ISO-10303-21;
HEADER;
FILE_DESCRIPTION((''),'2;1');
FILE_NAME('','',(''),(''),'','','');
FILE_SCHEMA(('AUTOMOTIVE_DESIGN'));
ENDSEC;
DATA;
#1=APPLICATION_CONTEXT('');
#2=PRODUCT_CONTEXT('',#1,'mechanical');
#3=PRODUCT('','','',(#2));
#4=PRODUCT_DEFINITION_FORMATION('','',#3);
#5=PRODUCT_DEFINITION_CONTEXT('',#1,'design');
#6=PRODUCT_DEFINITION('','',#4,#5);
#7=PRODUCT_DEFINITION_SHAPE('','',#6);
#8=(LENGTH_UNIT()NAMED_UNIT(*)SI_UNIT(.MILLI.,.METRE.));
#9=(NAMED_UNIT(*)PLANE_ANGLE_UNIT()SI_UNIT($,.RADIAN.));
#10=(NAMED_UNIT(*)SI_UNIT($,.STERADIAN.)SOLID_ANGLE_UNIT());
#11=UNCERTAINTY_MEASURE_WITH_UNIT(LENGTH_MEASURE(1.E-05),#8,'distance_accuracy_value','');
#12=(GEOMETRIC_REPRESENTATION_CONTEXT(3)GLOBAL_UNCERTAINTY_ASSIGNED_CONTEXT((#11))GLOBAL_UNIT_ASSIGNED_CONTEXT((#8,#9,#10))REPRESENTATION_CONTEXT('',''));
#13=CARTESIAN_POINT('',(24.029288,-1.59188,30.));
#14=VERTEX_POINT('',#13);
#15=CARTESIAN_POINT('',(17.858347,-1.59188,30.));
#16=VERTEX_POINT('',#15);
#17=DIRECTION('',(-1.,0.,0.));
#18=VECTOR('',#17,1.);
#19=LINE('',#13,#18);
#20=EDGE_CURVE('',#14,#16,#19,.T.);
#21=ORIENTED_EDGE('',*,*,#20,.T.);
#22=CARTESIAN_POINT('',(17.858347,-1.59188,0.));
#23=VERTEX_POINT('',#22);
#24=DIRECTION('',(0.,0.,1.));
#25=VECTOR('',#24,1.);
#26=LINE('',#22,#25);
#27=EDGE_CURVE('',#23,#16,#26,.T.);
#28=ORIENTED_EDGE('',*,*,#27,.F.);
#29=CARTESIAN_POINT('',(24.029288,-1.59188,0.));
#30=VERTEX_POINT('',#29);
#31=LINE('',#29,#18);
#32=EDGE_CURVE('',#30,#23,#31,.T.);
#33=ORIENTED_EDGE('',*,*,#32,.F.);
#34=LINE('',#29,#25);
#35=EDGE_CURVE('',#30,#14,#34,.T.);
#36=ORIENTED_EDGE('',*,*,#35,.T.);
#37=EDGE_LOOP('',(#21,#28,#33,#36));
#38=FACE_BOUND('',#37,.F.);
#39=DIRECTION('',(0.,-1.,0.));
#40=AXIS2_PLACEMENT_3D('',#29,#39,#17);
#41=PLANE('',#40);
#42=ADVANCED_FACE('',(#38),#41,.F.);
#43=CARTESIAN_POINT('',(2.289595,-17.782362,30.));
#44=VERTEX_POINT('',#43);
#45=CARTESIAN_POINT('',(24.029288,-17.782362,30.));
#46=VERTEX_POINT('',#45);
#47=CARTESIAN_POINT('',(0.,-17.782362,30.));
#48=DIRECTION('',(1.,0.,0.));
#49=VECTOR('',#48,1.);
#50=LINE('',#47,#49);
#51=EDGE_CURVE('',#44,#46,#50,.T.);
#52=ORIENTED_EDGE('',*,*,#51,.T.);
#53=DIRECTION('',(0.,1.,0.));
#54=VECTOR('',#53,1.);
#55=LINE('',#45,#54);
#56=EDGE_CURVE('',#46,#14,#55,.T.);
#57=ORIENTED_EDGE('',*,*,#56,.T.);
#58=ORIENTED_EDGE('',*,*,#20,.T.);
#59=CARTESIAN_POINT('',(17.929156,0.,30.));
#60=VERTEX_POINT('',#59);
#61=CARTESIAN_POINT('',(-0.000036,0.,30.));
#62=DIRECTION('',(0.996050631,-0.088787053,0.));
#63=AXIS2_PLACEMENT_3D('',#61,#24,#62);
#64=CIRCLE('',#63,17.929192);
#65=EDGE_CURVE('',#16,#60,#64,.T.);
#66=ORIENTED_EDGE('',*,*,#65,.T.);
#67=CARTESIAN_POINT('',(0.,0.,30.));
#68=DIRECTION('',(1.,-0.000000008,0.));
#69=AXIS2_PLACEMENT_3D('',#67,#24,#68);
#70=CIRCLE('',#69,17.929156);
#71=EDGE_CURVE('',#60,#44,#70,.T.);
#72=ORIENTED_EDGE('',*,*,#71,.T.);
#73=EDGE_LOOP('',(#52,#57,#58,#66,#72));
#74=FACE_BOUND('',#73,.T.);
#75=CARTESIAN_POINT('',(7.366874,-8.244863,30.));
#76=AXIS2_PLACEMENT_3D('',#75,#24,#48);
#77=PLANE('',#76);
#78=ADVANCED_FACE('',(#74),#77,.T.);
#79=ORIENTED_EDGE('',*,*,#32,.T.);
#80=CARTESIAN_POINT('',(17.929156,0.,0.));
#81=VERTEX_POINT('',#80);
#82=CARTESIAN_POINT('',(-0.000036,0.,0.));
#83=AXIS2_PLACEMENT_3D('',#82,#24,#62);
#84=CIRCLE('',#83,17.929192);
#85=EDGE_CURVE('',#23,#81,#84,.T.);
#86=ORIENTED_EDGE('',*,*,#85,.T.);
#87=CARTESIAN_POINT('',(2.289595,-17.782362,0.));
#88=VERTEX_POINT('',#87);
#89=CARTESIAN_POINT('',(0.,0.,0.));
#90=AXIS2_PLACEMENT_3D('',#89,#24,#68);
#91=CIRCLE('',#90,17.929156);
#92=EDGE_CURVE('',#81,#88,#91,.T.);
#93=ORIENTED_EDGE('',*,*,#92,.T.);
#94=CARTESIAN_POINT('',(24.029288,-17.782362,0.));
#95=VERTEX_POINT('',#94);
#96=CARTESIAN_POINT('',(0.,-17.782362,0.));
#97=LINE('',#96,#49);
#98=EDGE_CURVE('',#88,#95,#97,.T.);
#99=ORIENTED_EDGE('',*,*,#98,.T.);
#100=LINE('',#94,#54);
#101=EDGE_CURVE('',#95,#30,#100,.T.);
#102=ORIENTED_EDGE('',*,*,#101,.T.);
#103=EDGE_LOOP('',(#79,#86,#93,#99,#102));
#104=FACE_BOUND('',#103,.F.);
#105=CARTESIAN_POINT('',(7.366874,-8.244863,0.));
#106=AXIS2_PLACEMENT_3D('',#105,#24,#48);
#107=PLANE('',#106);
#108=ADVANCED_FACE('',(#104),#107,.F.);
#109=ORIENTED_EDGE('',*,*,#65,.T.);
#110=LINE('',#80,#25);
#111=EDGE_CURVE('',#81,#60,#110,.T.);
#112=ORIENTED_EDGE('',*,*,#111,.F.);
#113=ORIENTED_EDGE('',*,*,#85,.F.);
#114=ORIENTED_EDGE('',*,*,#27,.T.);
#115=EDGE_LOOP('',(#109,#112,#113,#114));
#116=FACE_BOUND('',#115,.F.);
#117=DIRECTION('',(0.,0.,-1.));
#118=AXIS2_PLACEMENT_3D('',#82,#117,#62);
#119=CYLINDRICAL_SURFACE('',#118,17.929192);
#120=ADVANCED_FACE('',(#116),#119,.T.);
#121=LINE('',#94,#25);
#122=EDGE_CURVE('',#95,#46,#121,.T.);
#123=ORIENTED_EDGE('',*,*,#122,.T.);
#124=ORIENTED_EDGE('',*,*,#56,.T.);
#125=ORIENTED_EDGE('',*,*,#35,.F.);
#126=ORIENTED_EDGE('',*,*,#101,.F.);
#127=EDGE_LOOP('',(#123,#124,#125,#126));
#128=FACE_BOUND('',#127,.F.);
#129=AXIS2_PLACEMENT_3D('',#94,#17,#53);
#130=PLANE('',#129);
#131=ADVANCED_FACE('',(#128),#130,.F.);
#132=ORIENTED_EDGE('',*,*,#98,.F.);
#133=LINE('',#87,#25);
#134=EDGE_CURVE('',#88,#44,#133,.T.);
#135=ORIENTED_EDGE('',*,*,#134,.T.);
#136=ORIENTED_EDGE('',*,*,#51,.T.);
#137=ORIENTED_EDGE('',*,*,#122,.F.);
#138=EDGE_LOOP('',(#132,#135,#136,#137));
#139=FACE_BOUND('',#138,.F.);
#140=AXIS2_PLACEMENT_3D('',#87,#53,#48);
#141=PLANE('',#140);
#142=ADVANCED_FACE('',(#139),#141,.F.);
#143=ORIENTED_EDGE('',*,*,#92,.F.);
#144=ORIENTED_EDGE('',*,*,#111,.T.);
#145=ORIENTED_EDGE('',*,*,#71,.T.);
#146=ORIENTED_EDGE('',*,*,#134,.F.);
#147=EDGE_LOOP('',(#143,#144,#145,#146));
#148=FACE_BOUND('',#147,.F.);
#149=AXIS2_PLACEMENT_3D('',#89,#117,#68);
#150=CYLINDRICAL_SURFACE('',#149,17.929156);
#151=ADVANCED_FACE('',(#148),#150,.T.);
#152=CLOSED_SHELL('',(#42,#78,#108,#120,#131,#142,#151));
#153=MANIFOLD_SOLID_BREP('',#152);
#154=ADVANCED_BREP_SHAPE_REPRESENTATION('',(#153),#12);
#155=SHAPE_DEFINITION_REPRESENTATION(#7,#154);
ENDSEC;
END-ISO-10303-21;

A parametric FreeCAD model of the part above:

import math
import FreeCAD as App
import Part
import Sketcher

V = App.Vector

doc = App.newDocument("Part")
params = doc.addObject("Spreadsheet::Sheet", "Params")
for row, (alias, value) in enumerate([
    ("pad1_length", "30 mm"),
], start=1):
    params.set(f"A{row}", alias)
    params.set(f"B{row}", "=" + value)
    params.setAlias(f"B{row}", alias)

body = doc.addObject("PartDesign::Body", "Body")

# Sketch on XY plane
sketch1 = body.newObject("Sketcher::SketchObject", "Sketch")
sketch1.AttachmentSupport = (doc.getObject("XY_Plane"), [""])
sketch1.MapMode = "FlatFace"
sketch1.addGeometry([
    Part.LineSegment(V(2.3, -17.8, 0), V(24, -17.8, 0)),  # 0
    Part.LineSegment(V(24, -17.8, 0), V(24, -1.6, 0)),  # 1
    Part.LineSegment(V(24, -1.6, 0), V(17.9, -1.6, 0)),  # 2
    Part.ArcOfCircle(Part.Circle(V(0, 0, 0), V(0, 0, 1), 17.9), math.radians(-5.09), math.radians(0)),  # 3
    Part.ArcOfCircle(Part.Circle(V(0, 0, 0), V(0, 0, 1), 17.9), math.radians(0), math.radians(277)),  # 4
], False)
sketch1.addConstraint([
    Sketcher.Constraint("Coincident", 0, 2, 1, 1),
    Sketcher.Constraint("Coincident", 1, 2, 2, 1),
    Sketcher.Constraint("Coincident", 2, 2, 3, 1),
    Sketcher.Constraint("Tangent", 3, 2, 4, 1),
    Sketcher.Constraint("Coincident", 4, 2, 0, 1),
    Sketcher.Constraint("Horizontal", 0),
    Sketcher.Constraint("Vertical", 1),
    Sketcher.Constraint("Horizontal", 2),
    Sketcher.Constraint("Coincident", 4, 3, -1, 1),
    Sketcher.Constraint("PointOnObject", 3, 2, -1),
    Sketcher.Constraint("Radius", 3, 17.929192),
    Sketcher.Constraint("Radius", 4, 17.929156),
    Sketcher.Constraint("DistanceX", 2, 2, 2, 1, 6.170941),
    Sketcher.Constraint("DistanceY", 1, 1, 1, 2, 16.190482),
    Sketcher.Constraint("DistanceX", 0, 1, 0, 2, 21.739693),
])
pad1 = body.newObject("PartDesign::Pad", "Pad")
pad1.Profile = sketch1
pad1.setExpression("Length", "Params.pad1_length")

doc.recompute()
